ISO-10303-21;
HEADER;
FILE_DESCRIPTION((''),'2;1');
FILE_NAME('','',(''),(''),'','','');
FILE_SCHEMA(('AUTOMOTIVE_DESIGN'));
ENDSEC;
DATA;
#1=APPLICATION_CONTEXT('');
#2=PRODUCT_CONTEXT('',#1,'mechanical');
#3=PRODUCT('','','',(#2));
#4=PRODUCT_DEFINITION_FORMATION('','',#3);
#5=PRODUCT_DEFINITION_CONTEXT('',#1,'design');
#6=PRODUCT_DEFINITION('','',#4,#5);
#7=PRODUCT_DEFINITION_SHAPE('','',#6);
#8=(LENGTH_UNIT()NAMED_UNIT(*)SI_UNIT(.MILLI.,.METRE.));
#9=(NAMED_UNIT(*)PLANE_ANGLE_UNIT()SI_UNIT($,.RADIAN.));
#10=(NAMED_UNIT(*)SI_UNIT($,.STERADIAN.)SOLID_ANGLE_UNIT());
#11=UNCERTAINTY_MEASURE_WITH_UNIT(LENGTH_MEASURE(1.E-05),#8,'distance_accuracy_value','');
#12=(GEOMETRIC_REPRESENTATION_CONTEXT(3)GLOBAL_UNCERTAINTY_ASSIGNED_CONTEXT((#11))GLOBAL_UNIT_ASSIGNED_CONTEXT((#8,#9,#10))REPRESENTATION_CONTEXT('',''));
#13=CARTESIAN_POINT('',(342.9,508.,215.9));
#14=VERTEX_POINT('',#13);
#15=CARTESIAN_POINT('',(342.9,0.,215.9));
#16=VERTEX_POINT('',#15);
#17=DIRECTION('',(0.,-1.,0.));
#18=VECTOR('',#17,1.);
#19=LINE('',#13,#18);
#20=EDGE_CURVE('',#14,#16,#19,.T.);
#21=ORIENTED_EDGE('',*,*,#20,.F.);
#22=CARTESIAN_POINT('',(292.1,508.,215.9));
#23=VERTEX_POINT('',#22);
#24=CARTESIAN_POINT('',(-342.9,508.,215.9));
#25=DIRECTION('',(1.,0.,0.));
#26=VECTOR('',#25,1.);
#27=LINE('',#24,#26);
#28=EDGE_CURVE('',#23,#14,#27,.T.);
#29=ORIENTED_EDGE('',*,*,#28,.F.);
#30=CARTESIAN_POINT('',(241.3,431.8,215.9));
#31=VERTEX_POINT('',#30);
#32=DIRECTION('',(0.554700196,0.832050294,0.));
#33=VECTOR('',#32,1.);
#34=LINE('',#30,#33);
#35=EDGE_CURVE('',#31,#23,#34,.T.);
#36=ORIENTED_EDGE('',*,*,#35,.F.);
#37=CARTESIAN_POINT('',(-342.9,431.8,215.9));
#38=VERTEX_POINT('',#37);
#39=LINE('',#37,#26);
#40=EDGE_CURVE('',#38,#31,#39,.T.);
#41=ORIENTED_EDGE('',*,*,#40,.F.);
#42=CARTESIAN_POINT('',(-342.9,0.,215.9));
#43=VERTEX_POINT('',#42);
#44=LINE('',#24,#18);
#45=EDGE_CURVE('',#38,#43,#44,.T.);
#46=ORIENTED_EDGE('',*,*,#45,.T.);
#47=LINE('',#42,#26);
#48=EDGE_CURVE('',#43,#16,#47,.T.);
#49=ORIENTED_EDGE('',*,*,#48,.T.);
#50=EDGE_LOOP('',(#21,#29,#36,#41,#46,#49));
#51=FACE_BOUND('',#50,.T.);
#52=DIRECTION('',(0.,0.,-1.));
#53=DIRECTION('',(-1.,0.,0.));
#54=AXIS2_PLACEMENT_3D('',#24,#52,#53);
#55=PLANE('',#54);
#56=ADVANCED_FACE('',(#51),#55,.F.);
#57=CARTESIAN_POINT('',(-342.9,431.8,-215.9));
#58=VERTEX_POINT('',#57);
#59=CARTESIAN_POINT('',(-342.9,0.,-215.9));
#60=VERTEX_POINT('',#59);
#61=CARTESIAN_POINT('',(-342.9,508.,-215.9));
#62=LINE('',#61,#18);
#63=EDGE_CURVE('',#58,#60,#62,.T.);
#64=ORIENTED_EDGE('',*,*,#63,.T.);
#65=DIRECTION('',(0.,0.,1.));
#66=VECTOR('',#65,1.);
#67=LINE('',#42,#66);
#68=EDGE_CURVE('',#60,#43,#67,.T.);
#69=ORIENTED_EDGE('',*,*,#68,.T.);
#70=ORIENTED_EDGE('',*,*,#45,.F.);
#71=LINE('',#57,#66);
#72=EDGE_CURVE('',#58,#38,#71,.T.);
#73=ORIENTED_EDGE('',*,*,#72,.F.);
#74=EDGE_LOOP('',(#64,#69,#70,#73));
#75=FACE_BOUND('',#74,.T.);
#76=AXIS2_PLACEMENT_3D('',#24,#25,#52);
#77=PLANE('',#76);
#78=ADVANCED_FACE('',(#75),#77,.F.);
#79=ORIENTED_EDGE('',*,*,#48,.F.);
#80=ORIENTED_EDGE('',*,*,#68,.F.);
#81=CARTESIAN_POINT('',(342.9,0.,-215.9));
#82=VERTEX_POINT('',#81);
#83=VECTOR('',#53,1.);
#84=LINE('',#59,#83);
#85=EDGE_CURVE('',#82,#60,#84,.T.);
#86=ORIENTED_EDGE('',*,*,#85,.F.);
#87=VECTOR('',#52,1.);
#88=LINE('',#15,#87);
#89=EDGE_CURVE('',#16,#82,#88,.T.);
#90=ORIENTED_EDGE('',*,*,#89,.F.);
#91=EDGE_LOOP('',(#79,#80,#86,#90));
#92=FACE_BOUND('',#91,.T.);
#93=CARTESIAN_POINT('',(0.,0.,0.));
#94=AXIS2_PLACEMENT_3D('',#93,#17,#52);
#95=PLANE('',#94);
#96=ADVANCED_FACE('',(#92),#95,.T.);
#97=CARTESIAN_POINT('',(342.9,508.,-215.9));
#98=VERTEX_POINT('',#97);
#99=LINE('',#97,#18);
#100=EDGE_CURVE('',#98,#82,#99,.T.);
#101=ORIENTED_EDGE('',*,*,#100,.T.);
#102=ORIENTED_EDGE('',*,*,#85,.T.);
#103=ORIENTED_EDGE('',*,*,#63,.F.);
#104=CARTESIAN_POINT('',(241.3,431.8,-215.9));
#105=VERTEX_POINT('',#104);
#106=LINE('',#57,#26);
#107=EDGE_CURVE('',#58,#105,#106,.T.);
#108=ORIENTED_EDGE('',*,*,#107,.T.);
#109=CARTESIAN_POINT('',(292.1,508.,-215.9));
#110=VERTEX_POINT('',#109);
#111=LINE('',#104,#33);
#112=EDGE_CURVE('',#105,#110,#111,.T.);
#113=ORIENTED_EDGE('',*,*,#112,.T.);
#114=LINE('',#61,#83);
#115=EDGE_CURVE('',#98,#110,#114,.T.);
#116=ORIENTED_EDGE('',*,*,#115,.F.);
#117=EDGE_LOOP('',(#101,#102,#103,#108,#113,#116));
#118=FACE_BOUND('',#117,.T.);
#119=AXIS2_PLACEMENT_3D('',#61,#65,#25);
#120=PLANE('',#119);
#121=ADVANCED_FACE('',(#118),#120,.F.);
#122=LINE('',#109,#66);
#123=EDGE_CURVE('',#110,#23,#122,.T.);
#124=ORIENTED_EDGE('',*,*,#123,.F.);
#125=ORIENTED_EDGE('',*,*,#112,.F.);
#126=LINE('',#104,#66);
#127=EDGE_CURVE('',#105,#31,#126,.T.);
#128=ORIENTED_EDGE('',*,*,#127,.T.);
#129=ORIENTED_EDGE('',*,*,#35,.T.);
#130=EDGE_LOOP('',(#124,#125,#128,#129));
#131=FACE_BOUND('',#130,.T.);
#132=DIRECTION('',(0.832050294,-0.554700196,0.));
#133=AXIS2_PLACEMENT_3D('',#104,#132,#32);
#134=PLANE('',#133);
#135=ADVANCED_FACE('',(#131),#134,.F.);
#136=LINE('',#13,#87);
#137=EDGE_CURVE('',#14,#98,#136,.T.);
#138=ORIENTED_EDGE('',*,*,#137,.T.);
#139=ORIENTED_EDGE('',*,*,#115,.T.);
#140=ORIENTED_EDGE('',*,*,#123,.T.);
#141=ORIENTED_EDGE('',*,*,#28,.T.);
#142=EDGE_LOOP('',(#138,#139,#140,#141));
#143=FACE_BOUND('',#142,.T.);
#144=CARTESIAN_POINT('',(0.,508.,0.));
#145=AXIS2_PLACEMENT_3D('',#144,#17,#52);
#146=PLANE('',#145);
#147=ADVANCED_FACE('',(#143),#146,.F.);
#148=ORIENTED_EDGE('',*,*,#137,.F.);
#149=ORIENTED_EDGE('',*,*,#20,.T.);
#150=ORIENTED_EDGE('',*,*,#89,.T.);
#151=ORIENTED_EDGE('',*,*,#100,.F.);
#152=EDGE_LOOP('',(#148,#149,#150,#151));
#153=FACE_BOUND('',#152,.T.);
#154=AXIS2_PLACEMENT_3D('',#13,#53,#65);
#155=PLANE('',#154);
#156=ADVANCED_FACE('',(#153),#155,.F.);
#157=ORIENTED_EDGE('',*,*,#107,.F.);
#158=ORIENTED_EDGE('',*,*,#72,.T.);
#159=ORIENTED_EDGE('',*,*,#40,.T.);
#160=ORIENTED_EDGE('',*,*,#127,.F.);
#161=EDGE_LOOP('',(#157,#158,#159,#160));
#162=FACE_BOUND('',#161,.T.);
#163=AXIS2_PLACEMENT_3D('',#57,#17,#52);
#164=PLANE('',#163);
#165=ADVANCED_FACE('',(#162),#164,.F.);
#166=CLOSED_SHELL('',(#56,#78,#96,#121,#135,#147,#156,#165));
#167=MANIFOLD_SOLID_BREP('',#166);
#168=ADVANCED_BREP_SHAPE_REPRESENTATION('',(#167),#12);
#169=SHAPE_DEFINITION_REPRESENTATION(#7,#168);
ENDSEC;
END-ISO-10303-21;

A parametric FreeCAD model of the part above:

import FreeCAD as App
import Part
import Sketcher
from FreeCAD import Vector
Q = App.Units.Quantity

doc = App.newDocument("Part")
body = doc.addObject("PartDesign::Body", "Body")

# Sketch on XZ plane
sketch1 = doc.addObject("Sketcher::SketchObject", "Sketch")
body.addObject(sketch1)
sketch1.AttachmentSupport = (doc.XZ_Plane, [""])
sketch1.MapMode = "FlatFace"
sketch1.addGeometry([
    Part.LineSegment(Vector(-343, -216, 0), Vector(-343, 216, 0)),
    Part.LineSegment(Vector(-343, 216, 0), Vector(343, 216, 0)),
    Part.LineSegment(Vector(343, 216, 0), Vector(343, -216, 0)),
    Part.LineSegment(Vector(343, -216, 0), Vector(-343, -216, 0)),
], False)
sketch1.addConstraint([
    Sketcher.Constraint("Coincident", 0, 2, 1, 1),
    Sketcher.Constraint("Coincident", 1, 2, 2, 1),
    Sketcher.Constraint("Coincident", 2, 2, 3, 1),
    Sketcher.Constraint("Coincident", 3, 2, 0, 1),
    Sketcher.Constraint("Vertical", 0),
    Sketcher.Constraint("Horizontal", 1),
    Sketcher.Constraint("Vertical", 2),
    Sketcher.Constraint("Horizontal", 3),
    Sketcher.Constraint("Symmetric", 0, 2, 2, 2, -1, 1),
    Sketcher.Constraint("DistanceX", 1, 1, 1, 2, Q("27 in")),
    Sketcher.Constraint("DistanceY", 0, 1, 0, 2, Q("17 in")),
])
pad1 = doc.addObject("PartDesign::Pad", "Pad")
body.addObject(pad1)
pad1.Profile = sketch1
pad1.Length = Q("20 in")
pad1.Reversed = True

# Sketch on XY plane
sketch2 = doc.addObject("Sketcher::SketchObject", "Sketch001")
body.addObject(sketch2)
sketch2.AttachmentSupport = (doc.XY_Plane, [""])
sketch2.MapMode = "FlatFace"
sketch2.AttachmentOffset = App.Placement(Vector(0, 0, 8.5 * 25.4), App.Rotation())
sketch2.addGeometry([
    Part.LineSegment(Vector(-343, 432, 0), Vector(241, 432, 0)),
    Part.LineSegment(Vector(241, 432, 0), Vector(292, 508, 0)),
    Part.LineSegment(Vector(292, 508, 0), Vector(-343, 508, 0)),
    Part.LineSegment(Vector(-343, 508, 0), Vector(-343, 432, 0)),
], False)
sketch2.addConstraint([
    Sketcher.Constraint("Coincident", 0, 2, 1, 1),
    Sketcher.Constraint("Coincident", 1, 2, 2, 1),
    Sketcher.Constraint("Coincident", 2, 2, 3, 1),
    Sketcher.Constraint("Coincident", 3, 2, 0, 1),
    Sketcher.Constraint("Horizontal", 0),
    Sketcher.Constraint("Horizontal", 2),
    Sketcher.Constraint("Vertical", 3),
    Sketcher.Constraint("DistanceX", 0, 1, 0, 2, Q("23 in")),
    Sketcher.Constraint("DistanceX", 2, 2, 2, 1, Q("25 in")),
    Sketcher.Constraint("DistanceY", 3, 2, 3, 1, Q("3 in")),
    Sketcher.Constraint("DistanceY", -1, 1, 0, 2, Q("17 in")),
    Sketcher.Constraint("DistanceX", -1, 1, 0, 2, Q("9.5 in")),
])
pocket1 = doc.addObject("PartDesign::Pocket", "Pocket")
body.addObject(pocket1)
pocket1.Profile = sketch2
pocket1.Type = "ThroughAll"

doc.recompute()
